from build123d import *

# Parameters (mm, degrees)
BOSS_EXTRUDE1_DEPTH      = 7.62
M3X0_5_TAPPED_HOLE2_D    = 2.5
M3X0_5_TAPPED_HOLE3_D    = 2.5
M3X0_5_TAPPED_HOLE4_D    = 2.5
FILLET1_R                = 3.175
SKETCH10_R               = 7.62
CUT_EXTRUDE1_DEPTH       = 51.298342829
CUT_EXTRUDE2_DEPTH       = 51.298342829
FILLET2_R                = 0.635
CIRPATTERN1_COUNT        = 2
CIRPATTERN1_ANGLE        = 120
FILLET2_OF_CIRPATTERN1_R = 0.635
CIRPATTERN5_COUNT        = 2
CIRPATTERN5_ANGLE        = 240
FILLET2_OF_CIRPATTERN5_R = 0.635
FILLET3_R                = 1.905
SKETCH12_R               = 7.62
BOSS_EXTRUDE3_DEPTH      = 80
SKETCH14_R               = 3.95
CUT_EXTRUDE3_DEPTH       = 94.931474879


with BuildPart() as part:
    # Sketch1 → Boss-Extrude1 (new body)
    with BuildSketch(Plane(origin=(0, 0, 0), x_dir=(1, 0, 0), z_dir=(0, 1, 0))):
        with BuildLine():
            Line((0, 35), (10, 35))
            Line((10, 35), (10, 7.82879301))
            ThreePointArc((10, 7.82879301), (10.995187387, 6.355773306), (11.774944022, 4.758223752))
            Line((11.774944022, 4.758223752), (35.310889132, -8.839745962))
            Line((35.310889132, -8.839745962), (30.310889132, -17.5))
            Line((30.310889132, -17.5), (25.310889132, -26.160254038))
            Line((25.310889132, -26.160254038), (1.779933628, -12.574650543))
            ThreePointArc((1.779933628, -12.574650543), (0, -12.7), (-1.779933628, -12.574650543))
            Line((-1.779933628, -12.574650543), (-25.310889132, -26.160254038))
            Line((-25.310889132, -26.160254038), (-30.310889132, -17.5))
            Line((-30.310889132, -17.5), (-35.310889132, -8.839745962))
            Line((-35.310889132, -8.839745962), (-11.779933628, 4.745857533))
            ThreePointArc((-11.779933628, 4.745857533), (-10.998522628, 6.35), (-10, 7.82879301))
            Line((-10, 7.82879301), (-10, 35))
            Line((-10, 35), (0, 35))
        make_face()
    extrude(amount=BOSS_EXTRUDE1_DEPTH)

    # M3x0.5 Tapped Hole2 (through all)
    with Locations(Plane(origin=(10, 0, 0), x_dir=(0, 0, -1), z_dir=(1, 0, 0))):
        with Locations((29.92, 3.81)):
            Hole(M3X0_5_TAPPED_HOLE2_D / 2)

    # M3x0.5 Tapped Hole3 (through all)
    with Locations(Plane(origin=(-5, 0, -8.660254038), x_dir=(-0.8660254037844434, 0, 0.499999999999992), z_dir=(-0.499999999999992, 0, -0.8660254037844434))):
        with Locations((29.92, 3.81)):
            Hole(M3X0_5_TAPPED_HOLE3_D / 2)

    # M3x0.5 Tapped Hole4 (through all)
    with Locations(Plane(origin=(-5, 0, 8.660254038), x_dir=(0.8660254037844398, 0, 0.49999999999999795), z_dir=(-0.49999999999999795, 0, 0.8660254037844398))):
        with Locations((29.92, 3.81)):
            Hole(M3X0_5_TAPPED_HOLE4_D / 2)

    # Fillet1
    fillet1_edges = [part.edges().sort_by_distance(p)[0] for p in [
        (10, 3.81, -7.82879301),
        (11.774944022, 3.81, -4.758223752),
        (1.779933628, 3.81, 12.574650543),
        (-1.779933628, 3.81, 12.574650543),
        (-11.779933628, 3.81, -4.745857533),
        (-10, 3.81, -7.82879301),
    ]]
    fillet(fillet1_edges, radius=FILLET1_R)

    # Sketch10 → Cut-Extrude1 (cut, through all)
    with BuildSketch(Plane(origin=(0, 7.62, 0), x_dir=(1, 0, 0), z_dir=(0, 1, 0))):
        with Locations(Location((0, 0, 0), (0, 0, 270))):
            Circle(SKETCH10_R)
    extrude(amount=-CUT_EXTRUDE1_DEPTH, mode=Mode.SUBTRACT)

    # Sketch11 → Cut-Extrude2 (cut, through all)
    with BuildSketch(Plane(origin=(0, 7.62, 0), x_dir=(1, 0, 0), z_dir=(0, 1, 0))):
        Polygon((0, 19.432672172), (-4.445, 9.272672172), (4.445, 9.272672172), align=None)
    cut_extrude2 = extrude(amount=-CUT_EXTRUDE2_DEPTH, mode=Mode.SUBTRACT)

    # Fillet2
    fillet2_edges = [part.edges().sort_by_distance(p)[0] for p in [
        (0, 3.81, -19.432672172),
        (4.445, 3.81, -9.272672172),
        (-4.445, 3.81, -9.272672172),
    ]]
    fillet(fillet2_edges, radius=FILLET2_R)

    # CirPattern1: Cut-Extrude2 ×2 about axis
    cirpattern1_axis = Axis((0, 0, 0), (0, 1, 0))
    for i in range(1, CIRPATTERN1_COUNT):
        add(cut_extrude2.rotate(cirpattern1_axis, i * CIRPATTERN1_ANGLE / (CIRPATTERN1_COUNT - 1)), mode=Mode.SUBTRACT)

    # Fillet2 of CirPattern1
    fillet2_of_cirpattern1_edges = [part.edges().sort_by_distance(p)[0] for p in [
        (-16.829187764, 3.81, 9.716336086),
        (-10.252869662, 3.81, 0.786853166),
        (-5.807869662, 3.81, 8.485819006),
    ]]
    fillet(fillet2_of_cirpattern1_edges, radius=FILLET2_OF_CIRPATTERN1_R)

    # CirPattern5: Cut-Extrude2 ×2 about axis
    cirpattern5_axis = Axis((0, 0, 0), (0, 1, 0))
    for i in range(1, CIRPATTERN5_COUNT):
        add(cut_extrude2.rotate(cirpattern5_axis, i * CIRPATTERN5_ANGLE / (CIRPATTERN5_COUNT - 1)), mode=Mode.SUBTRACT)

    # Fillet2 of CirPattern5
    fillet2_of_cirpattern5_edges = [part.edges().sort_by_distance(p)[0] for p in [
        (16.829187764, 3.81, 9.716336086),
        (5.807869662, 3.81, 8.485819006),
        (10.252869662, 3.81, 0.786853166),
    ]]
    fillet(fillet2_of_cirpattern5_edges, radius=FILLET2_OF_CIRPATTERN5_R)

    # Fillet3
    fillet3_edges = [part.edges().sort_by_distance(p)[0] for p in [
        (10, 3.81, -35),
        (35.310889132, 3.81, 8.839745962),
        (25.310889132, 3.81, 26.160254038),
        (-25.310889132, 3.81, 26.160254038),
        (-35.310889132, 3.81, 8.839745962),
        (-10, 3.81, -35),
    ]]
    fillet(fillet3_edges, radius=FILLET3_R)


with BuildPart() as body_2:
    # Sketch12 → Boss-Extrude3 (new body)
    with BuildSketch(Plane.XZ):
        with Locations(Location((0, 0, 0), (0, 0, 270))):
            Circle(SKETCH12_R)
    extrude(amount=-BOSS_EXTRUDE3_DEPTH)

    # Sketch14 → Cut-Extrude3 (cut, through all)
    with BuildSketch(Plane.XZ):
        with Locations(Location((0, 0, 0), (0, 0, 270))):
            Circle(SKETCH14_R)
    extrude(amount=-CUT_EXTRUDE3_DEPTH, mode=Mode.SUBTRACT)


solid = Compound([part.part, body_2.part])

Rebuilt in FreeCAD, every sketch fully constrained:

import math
import FreeCAD as App
import Part
import Sketcher
Q = App.Units.Quantity


def edges_at(feature, points):
    """Names of the edges that pass closest to the given points."""
    edges = feature.Shape.Edges
    near = lambda p: min(range(len(edges)), key=lambda i: edges[i].distToShape(Part.Vertex(*p))[0])
    return sorted({f"Edge{near(p) + 1}" for p in points})

doc = App.newDocument("Part")
body = doc.addObject("PartDesign::Body", "Body")

sketch1 = doc.addObject("Sketcher::SketchObject", "Sketch")
body.addObject(sketch1)
sketch1.AttachmentSupport = (doc.XZ_Plane, [""])
sketch1.MapMode = "FlatFace"
sketch1.addGeometry([
    Part.LineSegment(App.Vector(10, -7.8, 0), App.Vector(10, -35, 0)),
    Part.LineSegment(App.Vector(10, -35, 0), App.Vector(-10, -35, 0)),
    Part.LineSegment(App.Vector(-10, -35, 0), App.Vector(-10, -7.8, 0)),
    Part.ArcOfCircle(Part.Circle(App.Vector(0, 0, 0), App.Vector(0, 0, 1), 12.7), math.radians(-158.06), math.radians(-141.94)),
    Part.LineSegment(App.Vector(-11.8, -4.7, 0), App.Vector(-35.3, 8.8, 0)),
    Part.LineSegment(App.Vector(-35.3, 8.8, 0), App.Vector(-25.3, 26.2, 0)),
    Part.LineSegment(App.Vector(-25.3, 26.2, 0), App.Vector(-1.8, 12.6, 0)),
    Part.ArcOfCircle(Part.Circle(App.Vector(0, 0, 0), App.Vector(0, 0, 1), 12.7), math.radians(81.94), math.radians(98.06)),
    Part.LineSegment(App.Vector(1.8, 12.6, 0), App.Vector(25.3, 26.2, 0)),
    Part.LineSegment(App.Vector(25.3, 26.2, 0), App.Vector(35.3, 8.8, 0)),
    Part.LineSegment(App.Vector(35.3, 8.8, 0), App.Vector(11.8, -4.8, 0)),
    Part.ArcOfCircle(Part.Circle(App.Vector(0, 0, 0), App.Vector(0, 0, 1), 12.7), math.radians(-38.06), math.radians(-22)),
], False)
sketch1.addConstraint([
    Sketcher.Constraint("Coincident", 0, 2, 1, 1),
    Sketcher.Constraint("Coincident", 1, 2, 2, 1),
    Sketcher.Constraint("Coincident", 2, 2, 3, 2),
    Sketcher.Constraint("Coincident", 3, 1, 4, 1),
    Sketcher.Constraint("Coincident", 4, 2, 5, 1),
    Sketcher.Constraint("Coincident", 5, 2, 6, 1),
    Sketcher.Constraint("Coincident", 6, 2, 7, 2),
    Sketcher.Constraint("Coincident", 7, 1, 8, 1),
    Sketcher.Constraint("Coincident", 8, 2, 9, 1),
    Sketcher.Constraint("Coincident", 9, 2, 10, 1),
    Sketcher.Constraint("Coincident", 10, 2, 11, 2),
    Sketcher.Constraint("Coincident", 11, 1, 0, 1),
    Sketcher.Constraint("Vertical", 0),
    Sketcher.Constraint("Horizontal", 1),
    Sketcher.Constraint("Vertical", 2),
    Sketcher.Constraint("Coincident", 3, 3, -1, 1),
    Sketcher.Constraint("Coincident", 7, 3, -1, 1),
    Sketcher.Constraint("Coincident", 11, 3, -1, 1),
    Sketcher.Constraint("Equal", 3, 7),
    Sketcher.Constraint("Equal", 7, 11),
    Sketcher.Constraint("Symmetric", 5, 2, 8, 2, -2),
    Sketcher.Constraint("Symmetric", 4, 2, 9, 2, -2),
    Sketcher.Constraint("Perpendicular", 4, 5),
    Sketcher.Constraint("Perpendicular", 5, 6),
    Sketcher.Constraint("Perpendicular", 8, 9),
    Sketcher.Constraint("Horizontal", 2, 2, 11, 1),
    Sketcher.Constraint("Equal", 4, 6),
    Sketcher.Constraint("Radius", 3, Q("0.5 in")),
    Sketcher.Constraint("Angle", 4, Q("150 deg")),
    Sketcher.Constraint("DistanceX", 1, 2, 1, 1, Q("20 mm")),
    Sketcher.Constraint("Distance", 5, Q("20 mm")),
    Sketcher.Constraint("DistanceY", 0, 2, -1, 1, Q("35 mm")),
    Sketcher.Constraint("DistanceX", 4, 2, -1, 1, Q("35.310889 mm")),
    Sketcher.Constraint("DistanceX", 7, 1, 10, 2, Q("9.99501 mm")),
])
pad1 = doc.addObject("PartDesign::Pad", "Pad")
body.addObject(pad1)
pad1.Profile = sketch1
pad1.Length = Q("0.3 in")
pad1.Reversed = True

sketch2 = doc.addObject("Sketcher::SketchObject", "Sketch001")
body.addObject(sketch2)
sketch2.AttachmentSupport = (doc.YZ_Plane, [""])
sketch2.MapMode = "FlatFace"
sketch2.AttachmentOffset = App.Placement(App.Vector(0, 0, 10), App.Rotation())
sketch2.addGeometry(Part.Circle(App.Vector(3.8, -29.9, 0), App.Vector(0, 0, 1), 1.2), False)
sketch2.addConstraint([
    Sketcher.Constraint("Diameter", 0, Q("2.5 mm")),
    Sketcher.Constraint("DistanceX", -1, 1, 0, 3, Q("0.15 in")),
    Sketcher.Constraint("DistanceY", 0, 3, -1, 1, Q("29.92 mm")),
])
doc.recompute()
hole = doc.addObject("PartDesign::Hole", "Hole")
body.addObject(hole)
hole.Profile = sketch2
hole.ThreadType = "None"
hole.Diameter = 2.5
hole.DepthType = "ThroughAll"

sketch3 = doc.addObject("Sketcher::SketchObject", "Sketch002")
body.addObject(sketch3)
sketch3.Placement = App.Placement(App.Vector(-5, 0, -8.660254), App.Rotation(App.Vector(-0.866025404, 0, 0.5), App.Vector(0, 1, 0), App.Vector(-0.5, 0, -0.866025404), "ZXY"))
sketch3.addGeometry(Part.Circle(App.Vector(29.9, 3.8, 0), App.Vector(0, 0, 1), 1.2), False)
sketch3.addConstraint([
    Sketcher.Constraint("Diameter", 0, Q("2.5 mm")),
    Sketcher.Constraint("DistanceY", -1, 1, 0, 3, Q("0.15 in")),
    Sketcher.Constraint("DistanceX", -1, 1, 0, 3, Q("29.92 mm")),
])
doc.recompute()
hole2 = doc.addObject("PartDesign::Hole", "Hole001")
body.addObject(hole2)
hole2.Profile = sketch3
hole2.ThreadType = "None"
hole2.Diameter = 2.5
hole2.DepthType = "ThroughAll"

sketch4 = doc.addObject("Sketcher::SketchObject", "Sketch003")
body.addObject(sketch4)
sketch4.Placement = App.Placement(App.Vector(-5, 0, 8.660254), App.Rotation(App.Vector(0.866025404, 0, 0.5), App.Vector(0, 1, 0), App.Vector(-0.5, 0, 0.866025404), "ZXY"))
sketch4.addGeometry(Part.Circle(App.Vector(29.9, 3.8, 0), App.Vector(0, 0, 1), 1.2), False)
sketch4.addConstraint([
    Sketcher.Constraint("Diameter", 0, Q("2.5 mm")),
    Sketcher.Constraint("DistanceY", -1, 1, 0, 3, Q("0.15 in")),
    Sketcher.Constraint("DistanceX", -1, 1, 0, 3, Q("29.92 mm")),
])
doc.recompute()
hole3 = doc.addObject("PartDesign::Hole", "Hole002")
body.addObject(hole3)
hole3.Profile = sketch4
hole3.ThreadType = "None"
hole3.Diameter = 2.5
hole3.DepthType = "ThroughAll"
doc.recompute()

fillet = doc.addObject("PartDesign::Fillet", "Fillet")
body.addObject(fillet)
fillet.Base = (hole3, edges_at(hole3, [
    (10, 3.81, -7.829),
    (11.775, 3.81, -4.758),
    (1.78, 3.81, 12.575),
    (-1.78, 3.81, 12.575),
    (-11.78, 3.81, -4.746),
    (-10, 3.81, -7.829),
]))
fillet.Radius = Q("0.125 in")

sketch5 = doc.addObject("Sketcher::SketchObject", "Sketch004")
body.addObject(sketch5)
sketch5.AttachmentSupport = (doc.XZ_Plane, [""])
sketch5.MapMode = "FlatFace"
sketch5.AttachmentOffset = App.Placement(App.Vector(0, 0, -0.3 * 25.4), App.Rotation())
sketch5.addGeometry(Part.Circle(App.Vector(0, 0, 0), App.Vector(0, 0, 1), 8), False)
sketch5.addConstraint([
    Sketcher.Constraint("Coincident", 0, 3, -1, 1),
    Sketcher.Constraint("Diameter", 0, Q("0.6 in")),
])
pocket1 = doc.addObject("PartDesign::Pocket", "Pocket")
body.addObject(pocket1)
pocket1.Profile = sketch5
pocket1.Type = "ThroughAll"
pocket1.Reversed = True

sketch6 = doc.addObject("Sketcher::SketchObject", "Sketch005")
body.addObject(sketch6)
sketch6.AttachmentSupport = (doc.XZ_Plane, [""])
sketch6.MapMode = "FlatFace"
sketch6.AttachmentOffset = App.Placement(App.Vector(0, 0, -0.3 * 25.4), App.Rotation())
sketch6.addGeometry([
    Part.LineSegment(App.Vector(0, -19, 0), App.Vector(-4, -9, 0)),
    Part.LineSegment(App.Vector(-4, -9, 0), App.Vector(4, -9, 0)),
    Part.LineSegment(App.Vector(4, -9, 0), App.Vector(0, -19, 0)),
], False)
sketch6.addConstraint([
    Sketcher.Constraint("Coincident", 0, 2, 1, 1),
    Sketcher.Constraint("Coincident", 1, 2, 2, 1),
    Sketcher.Constraint("Coincident", 2, 2, 0, 1),
    Sketcher.Constraint("Horizontal", 1),
    Sketcher.Constraint("PointOnObject", 2, 2, -2),
    Sketcher.Constraint("Equal", 0, 2),
    Sketcher.Constraint("DistanceX", 1, 1, 1, 2, Q("0.35 in")),
    Sketcher.Constraint("DistanceY", 2, 2, 0, 2, Q("0.4 in")),
    Sketcher.Constraint("DistanceY", 0, 2, -1, 1, Q("9.272672 mm")),
])
pocket2 = doc.addObject("PartDesign::Pocket", "Pocket001")
body.addObject(pocket2)
pocket2.Profile = sketch6
pocket2.Type = "ThroughAll"
pocket2.Reversed = True
doc.recompute()

fillet2 = doc.addObject("PartDesign::Fillet", "Fillet001")
body.addObject(fillet2)
fillet2.Base = (pocket2, edges_at(pocket2, [(0, 3.81, -19.433), (4.445, 3.81, -9.273), (-4.445, 3.81, -9.273)]))
fillet2.Radius = Q("0.025 in")
doc.recompute()

polarpattern = doc.addObject("PartDesign::PolarPattern", "PolarPattern")
body.addObject(polarpattern)
polarpattern.Originals = [pocket2]
polarpattern.Axis = (doc.Y_Axis, [""])
polarpattern.Angle = 120
polarpattern.Occurrences = 2
body.Tip = polarpattern
doc.recompute()

fillet3 = doc.addObject("PartDesign::Fillet", "Fillet002")
body.addObject(fillet3)
fillet3.Base = (polarpattern, edges_at(polarpattern, [(-16.829, 3.81, 9.716), (-10.253, 3.81, 0.787), (-5.808, 3.81, 8.486)]))
fillet3.Radius = Q("0.025 in")
doc.recompute()

polarpattern2 = doc.addObject("PartDesign::PolarPattern", "PolarPattern001")
body.addObject(polarpattern2)
polarpattern2.Originals = [pocket2]
polarpattern2.Axis = (doc.Y_Axis, [""])
polarpattern2.Angle = 240
polarpattern2.Occurrences = 2
body.Tip = polarpattern2
doc.recompute()

fillet4 = doc.addObject("PartDesign::Fillet", "Fillet003")
body.addObject(fillet4)
fillet4.Base = (polarpattern2, edges_at(polarpattern2, [(16.829, 3.81, 9.716), (5.808, 3.81, 8.486), (10.253, 3.81, 0.787)]))
fillet4.Radius = Q("0.025 in")
doc.recompute()

fillet5 = doc.addObject("PartDesign::Fillet", "Fillet004")
body.addObject(fillet5)
fillet5.Base = (fillet4, edges_at(fillet4, [
    (10, 3.81, -35),
    (35.311, 3.81, 8.84),
    (25.311, 3.81, 26.16),
    (-25.311, 3.81, 26.16),
    (-35.311, 3.81, 8.84),
    (-10, 3.81, -35),
]))
fillet5.Radius = Q("0.075 in")
body2 = doc.addObject("PartDesign::Body", "Body001")

sketch7 = doc.addObject("Sketcher::SketchObject", "Sketch006")
body2.addObject(sketch7)
sketch7.AttachmentSupport = (doc.getObject("XZ_Plane001"), [""])
sketch7.MapMode = "FlatFace"
sketch7.addGeometry(Part.Circle(App.Vector(0, 0, 0), App.Vector(0, 0, 1), 8), False)
sketch7.addConstraint([
    Sketcher.Constraint("Coincident", 0, 3, -1, 1),
    Sketcher.Constraint("Diameter", 0, Q("0.6 in")),
])
pad2 = doc.addObject("PartDesign::Pad", "Pad001")
body2.addObject(pad2)
pad2.Profile = sketch7
pad2.Length = 80
pad2.Reversed = True

sketch8 = doc.addObject("Sketcher::SketchObject", "Sketch007")
body2.addObject(sketch8)
sketch8.AttachmentSupport = (doc.getObject("XZ_Plane001"), [""])
sketch8.MapMode = "FlatFace"
sketch8.addGeometry(Part.Circle(App.Vector(0, 0, 0), App.Vector(0, 0, 1), 4), False)
sketch8.addConstraint([
    Sketcher.Constraint("Coincident", 0, 3, -1, 1),
    Sketcher.Constraint("Diameter", 0, Q("7.9 mm")),
])
pocket3 = doc.addObject("PartDesign::Pocket", "Pocket002")
body2.addObject(pocket3)
pocket3.Profile = sketch8
pocket3.Type = "ThroughAll"

doc.recompute()
